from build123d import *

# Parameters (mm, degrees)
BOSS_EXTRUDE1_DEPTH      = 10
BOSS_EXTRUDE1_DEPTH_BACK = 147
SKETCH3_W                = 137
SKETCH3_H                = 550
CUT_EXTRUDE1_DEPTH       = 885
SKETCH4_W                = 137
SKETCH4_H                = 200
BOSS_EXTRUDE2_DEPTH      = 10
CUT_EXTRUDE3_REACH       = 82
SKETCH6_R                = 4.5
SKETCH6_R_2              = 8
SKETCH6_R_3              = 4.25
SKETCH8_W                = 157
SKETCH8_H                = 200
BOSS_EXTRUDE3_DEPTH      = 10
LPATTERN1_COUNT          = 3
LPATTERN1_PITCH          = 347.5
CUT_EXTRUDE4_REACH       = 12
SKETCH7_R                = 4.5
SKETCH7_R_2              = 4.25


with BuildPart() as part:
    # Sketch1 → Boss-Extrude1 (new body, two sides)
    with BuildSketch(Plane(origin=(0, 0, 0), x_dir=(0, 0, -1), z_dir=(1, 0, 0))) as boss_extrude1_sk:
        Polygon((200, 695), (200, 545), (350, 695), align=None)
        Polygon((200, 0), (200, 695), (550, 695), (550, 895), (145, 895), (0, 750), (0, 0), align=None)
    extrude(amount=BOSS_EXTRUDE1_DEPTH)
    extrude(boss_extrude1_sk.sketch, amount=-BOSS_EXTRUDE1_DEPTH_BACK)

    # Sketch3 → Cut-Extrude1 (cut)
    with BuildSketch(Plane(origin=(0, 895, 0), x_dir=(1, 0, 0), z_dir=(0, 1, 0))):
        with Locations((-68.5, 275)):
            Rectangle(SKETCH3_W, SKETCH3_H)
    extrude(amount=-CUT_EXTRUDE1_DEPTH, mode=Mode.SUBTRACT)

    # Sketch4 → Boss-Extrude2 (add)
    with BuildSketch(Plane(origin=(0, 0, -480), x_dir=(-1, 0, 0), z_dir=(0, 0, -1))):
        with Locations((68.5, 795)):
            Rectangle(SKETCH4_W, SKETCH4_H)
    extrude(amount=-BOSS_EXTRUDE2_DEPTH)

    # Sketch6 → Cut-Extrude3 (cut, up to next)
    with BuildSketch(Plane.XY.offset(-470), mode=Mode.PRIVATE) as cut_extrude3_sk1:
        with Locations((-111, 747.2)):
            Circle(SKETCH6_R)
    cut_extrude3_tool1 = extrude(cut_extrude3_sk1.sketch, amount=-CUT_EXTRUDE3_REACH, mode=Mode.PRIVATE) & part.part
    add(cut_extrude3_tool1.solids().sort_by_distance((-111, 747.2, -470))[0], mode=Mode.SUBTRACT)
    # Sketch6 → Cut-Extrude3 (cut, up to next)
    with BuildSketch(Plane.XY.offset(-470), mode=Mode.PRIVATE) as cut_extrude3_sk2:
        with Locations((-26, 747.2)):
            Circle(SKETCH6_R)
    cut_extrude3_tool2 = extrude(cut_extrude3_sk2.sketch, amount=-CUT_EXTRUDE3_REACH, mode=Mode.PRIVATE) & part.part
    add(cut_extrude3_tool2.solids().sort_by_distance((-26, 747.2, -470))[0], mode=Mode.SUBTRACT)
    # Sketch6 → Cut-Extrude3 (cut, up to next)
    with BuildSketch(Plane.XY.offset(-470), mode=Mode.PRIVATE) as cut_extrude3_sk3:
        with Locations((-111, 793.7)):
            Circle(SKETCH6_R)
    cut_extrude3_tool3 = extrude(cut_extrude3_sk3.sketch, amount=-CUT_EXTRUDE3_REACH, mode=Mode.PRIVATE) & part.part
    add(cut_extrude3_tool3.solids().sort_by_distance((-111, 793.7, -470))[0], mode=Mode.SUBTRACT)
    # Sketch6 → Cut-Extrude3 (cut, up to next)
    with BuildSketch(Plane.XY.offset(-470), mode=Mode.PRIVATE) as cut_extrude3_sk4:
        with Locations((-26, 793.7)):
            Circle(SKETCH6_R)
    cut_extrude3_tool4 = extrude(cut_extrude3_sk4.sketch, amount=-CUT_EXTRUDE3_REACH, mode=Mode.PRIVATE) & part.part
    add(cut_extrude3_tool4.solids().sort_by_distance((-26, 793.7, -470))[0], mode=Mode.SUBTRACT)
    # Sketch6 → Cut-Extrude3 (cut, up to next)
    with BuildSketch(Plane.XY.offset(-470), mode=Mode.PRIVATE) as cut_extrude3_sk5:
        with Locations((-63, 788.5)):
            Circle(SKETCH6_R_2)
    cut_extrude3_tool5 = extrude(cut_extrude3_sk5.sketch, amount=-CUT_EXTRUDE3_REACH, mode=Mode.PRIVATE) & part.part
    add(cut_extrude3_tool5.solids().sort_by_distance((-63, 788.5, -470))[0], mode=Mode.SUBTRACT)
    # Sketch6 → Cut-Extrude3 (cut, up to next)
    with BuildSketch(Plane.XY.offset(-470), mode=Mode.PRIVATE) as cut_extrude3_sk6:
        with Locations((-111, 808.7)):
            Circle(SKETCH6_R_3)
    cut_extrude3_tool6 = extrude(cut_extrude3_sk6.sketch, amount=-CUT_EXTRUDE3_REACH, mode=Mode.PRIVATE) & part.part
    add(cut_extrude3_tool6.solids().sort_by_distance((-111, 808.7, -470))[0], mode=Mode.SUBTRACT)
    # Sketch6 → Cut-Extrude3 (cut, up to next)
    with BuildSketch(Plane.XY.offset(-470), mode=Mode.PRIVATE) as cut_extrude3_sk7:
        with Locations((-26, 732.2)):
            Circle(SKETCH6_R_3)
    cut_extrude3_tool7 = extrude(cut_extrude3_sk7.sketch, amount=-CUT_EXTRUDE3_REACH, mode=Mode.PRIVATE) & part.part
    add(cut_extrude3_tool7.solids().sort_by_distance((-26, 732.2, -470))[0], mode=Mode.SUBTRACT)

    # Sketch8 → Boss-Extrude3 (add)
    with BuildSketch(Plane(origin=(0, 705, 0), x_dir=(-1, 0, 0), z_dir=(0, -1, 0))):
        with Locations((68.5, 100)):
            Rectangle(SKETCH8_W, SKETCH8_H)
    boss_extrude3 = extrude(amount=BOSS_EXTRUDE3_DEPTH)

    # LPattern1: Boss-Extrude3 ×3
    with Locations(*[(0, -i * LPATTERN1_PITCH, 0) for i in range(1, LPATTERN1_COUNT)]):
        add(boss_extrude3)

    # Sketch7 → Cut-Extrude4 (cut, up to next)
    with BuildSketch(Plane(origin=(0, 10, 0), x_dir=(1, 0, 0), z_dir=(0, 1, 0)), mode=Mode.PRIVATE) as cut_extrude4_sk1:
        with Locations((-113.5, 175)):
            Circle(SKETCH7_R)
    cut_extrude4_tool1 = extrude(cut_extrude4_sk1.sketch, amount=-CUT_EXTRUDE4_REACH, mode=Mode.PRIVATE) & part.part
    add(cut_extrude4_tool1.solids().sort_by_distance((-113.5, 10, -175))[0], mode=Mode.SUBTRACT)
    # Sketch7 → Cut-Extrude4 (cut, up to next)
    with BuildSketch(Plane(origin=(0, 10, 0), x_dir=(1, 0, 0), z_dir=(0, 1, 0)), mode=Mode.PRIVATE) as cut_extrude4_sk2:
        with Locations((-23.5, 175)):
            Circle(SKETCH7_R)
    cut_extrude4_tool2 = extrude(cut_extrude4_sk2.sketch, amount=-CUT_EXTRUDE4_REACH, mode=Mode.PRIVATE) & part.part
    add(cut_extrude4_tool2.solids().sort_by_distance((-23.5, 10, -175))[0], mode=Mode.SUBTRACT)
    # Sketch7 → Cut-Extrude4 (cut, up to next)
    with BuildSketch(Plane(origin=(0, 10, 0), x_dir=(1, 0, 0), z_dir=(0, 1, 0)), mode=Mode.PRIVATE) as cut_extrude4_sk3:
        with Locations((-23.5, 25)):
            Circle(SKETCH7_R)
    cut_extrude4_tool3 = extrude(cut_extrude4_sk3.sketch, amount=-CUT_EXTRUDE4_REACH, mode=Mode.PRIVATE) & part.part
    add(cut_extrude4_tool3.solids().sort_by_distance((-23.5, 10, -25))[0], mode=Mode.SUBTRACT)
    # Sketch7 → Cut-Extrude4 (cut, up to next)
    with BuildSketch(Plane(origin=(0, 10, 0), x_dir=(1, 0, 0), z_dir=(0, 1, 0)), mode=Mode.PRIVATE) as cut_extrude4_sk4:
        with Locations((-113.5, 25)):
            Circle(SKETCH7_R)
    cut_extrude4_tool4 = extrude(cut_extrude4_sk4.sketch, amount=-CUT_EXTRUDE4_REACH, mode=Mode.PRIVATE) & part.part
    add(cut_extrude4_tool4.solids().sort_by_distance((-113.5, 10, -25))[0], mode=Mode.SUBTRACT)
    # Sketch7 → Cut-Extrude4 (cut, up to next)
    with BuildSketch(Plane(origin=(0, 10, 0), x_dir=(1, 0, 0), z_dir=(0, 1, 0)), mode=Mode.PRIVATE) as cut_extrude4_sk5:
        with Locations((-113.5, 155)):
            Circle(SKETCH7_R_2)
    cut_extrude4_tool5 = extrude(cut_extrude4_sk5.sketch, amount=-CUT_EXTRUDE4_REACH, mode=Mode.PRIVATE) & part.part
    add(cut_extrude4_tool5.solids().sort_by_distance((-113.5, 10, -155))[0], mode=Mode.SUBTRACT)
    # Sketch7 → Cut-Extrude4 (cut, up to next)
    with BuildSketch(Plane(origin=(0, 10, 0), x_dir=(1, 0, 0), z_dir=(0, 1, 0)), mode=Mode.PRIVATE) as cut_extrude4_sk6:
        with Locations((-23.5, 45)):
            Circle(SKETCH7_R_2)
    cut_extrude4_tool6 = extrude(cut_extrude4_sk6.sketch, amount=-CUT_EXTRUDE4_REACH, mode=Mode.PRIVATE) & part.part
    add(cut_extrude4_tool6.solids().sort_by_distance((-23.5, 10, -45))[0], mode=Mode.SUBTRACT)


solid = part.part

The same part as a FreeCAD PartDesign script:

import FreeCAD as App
import Part
import Sketcher

V = App.Vector
Q = App.Units.Quantity


def add_polygon(sketch, points):
    """Adds a closed chain of lines whose ends are joined by coincident constraints."""
    first, n = sketch.GeometryCount, len(points)
    for a, b in zip(points, points[1:] + points[:1]):
        sketch.addGeometry(Part.LineSegment(App.Vector(*a, 0), App.Vector(*b, 0)), False)
    for i in range(n):
        sketch.addConstraint(Sketcher.Constraint("Coincident", first + i, 2, first + (i + 1) % n, 1))

doc = App.newDocument("Part")
params = doc.addObject("Spreadsheet::Sheet", "Params")
for row, (alias, value) in enumerate([
    ("sketch1_width", "200 mm"),
    ("sketch1_width2", "750 mm"),
    ("sketch1_width3", "545 mm"),
    ("sketch1_height", "405 mm"),
    ("pad1_length", "10 mm"),
    ("pad1_length2", "147 mm"),
    ("sketch2_width", "137 mm"),
    ("sketch2_height", "550 mm"),
    ("pocket1_length", "885 mm"),
    ("sketch3_width", "137 mm"),
    ("sketch3_height", "200 mm"),
    ("pad2_length", "10 mm"),
    ("sketch4_diameter", "9 mm"),
    ("sketch5_diameter", "9 mm"),
    ("sketch6_diameter", "9 mm"),
    ("sketch7_diameter", "9 mm"),
    ("sketch8_diameter", "16 mm"),
    ("sketch9_diameter", "8.5 mm"),
    ("sketch10_diameter", "8.5 mm"),
    ("sketch11_width", "157 mm"),
    ("sketch11_height", "200 mm"),
    ("pad3_length", "10 mm"),
    ("linearpattern_pitch", "347.5 mm"),
    ("sketch12_diameter", "9 mm"),
    ("sketch13_diameter", "9 mm"),
    ("sketch14_diameter", "9 mm"),
    ("sketch15_diameter", "9 mm"),
    ("sketch16_diameter", "8.5 mm"),
    ("sketch17_diameter", "8.5 mm"),
], start=1):
    params.set(f"A{row}", alias)
    params.set(f"B{row}", "=" + value)
    params.setAlias(f"B{row}", alias)

body = doc.addObject("PartDesign::Body", "Body")

# Sketch on YZ plane
sketch1 = body.newObject("Sketcher::SketchObject", "Sketch")
sketch1.AttachmentSupport = (doc.getObject("YZ_Plane"), [""])
sketch1.MapMode = "FlatFace"
add_polygon(sketch1, [(545, -200), (695, -350), (695, -550), (895, -550), (895, -145), (750, 0), (0, 0), (0, -200)])  # lines 0-7
sketch1.addConstraint([
    Sketcher.Constraint("Vertical", 1),
    Sketcher.Constraint("Horizontal", 2),
    Sketcher.Constraint("Vertical", 3),
    Sketcher.Constraint("Horizontal", 5),
    Sketcher.Constraint("Vertical", 6),
    Sketcher.Constraint("Horizontal", 7),
    Sketcher.Constraint("Coincident", 5, 2, -1, 1),
    Sketcher.Constraint("Parallel", 0, 4),
    Sketcher.Constraint("Equal", 2, 1),
    Sketcher.Constraint("Equal", 1, 6),
    Sketcher.Constraint("DistanceX", 2, 1, 2, 2, Q("200 mm")),
    Sketcher.Constraint("DistanceX", 5, 2, 5, 1, Q("750 mm")),
    Sketcher.Constraint("DistanceX", 7, 1, 7, 2, Q("545 mm")),
    Sketcher.Constraint("DistanceY", 3, 1, 3, 2, Q("405 mm")),
    Sketcher.Constraint("DistanceX", -1, 1, 0, 2, Q("695 mm")),
])
sketch1.setExpression("Constraints[18]", "Params.sketch1_width")
sketch1.setExpression("Constraints[19]", "Params.sketch1_width2")
sketch1.setExpression("Constraints[20]", "Params.sketch1_width3")
sketch1.setExpression("Constraints[21]", "Params.sketch1_height")
pad1 = body.newObject("PartDesign::Pad", "Pad")
pad1.Profile = sketch1
pad1.Type = "TwoLengths"
pad1.setExpression("Length", "Params.pad1_length")
pad1.setExpression("Length2", "Params.pad1_length2")

# Sketch on XZ plane
sketch2 = body.newObject("Sketcher::SketchObject", "Sketch001")
sketch2.AttachmentSupport = (doc.getObject("XZ_Plane"), [""])
sketch2.MapMode = "FlatFace"
sketch2.AttachmentOffset = App.Placement(V(0, 0, -895), App.Rotation())
add_polygon(sketch2, [(-137, -550), (-137, 0), (0, 0), (0, -550)])  # lines 0-3
sketch2.addConstraint([
    Sketcher.Constraint("Vertical", 0),
    Sketcher.Constraint("Horizontal", 1),
    Sketcher.Constraint("Vertical", 2),
    Sketcher.Constraint("Horizontal", 3),
    Sketcher.Constraint("Coincident", 1, 2, -1, 1),
    Sketcher.Constraint("DistanceX", 1, 1, 1, 2, Q("137 mm")),
    Sketcher.Constraint("DistanceY", 0, 1, 0, 2, Q("550 mm")),
])
sketch2.setExpression("Constraints[9]", "Params.sketch2_width")
sketch2.setExpression("Constraints[10]", "Params.sketch2_height")
pocket1 = body.newObject("PartDesign::Pocket", "Pocket")
pocket1.Profile = sketch2
pocket1.setExpression("Length", "Params.pocket1_length")
pocket1.Reversed = True

# Sketch on XY plane
sketch3 = body.newObject("Sketcher::SketchObject", "Sketch002")
sketch3.AttachmentSupport = (doc.getObject("XY_Plane"), [""])
sketch3.MapMode = "FlatFace"
sketch3.AttachmentOffset = App.Placement(V(0, 0, -480), App.Rotation())
add_polygon(sketch3, [(0, 895), (0, 695), (-137, 695), (-137, 895)])  # lines 0-3
sketch3.addConstraint([
    Sketcher.Constraint("Vertical", 0),
    Sketcher.Constraint("Horizontal", 1),
    Sketcher.Constraint("Vertical", 2),
    Sketcher.Constraint("Horizontal", 3),
    Sketcher.Constraint("PointOnObject", 0, 2, -2),
    Sketcher.Constraint("DistanceX", 1, 2, 1, 1, Q("137 mm")),
    Sketcher.Constraint("DistanceY", 0, 2, 0, 1, Q("200 mm")),
    Sketcher.Constraint("DistanceY", -1, 1, 0, 2, Q("695 mm")),
])
sketch3.setExpression("Constraints[9]", "Params.sketch3_width")
sketch3.setExpression("Constraints[10]", "Params.sketch3_height")
pad2 = body.newObject("PartDesign::Pad", "Pad001")
pad2.Profile = sketch3
pad2.setExpression("Length", "Params.pad2_length")

# Sketch on XY plane
sketch4 = body.newObject("Sketcher::SketchObject", "Sketch003")
sketch4.AttachmentSupport = (doc.getObject("XY_Plane"), [""])
sketch4.MapMode = "FlatFace"
sketch4.AttachmentOffset = App.Placement(V(0, 0, -470), App.Rotation())
sketch4.addGeometry(Part.Circle(V(-111, 747.2, 0), V(0, 0, 1), 4.5), False)
sketch4.addConstraint([
    Sketcher.Constraint("Diameter", 0, Q("9 mm")),
    Sketcher.Constraint("DistanceX", 0, 3, -1, 1, Q("111 mm")),
    Sketcher.Constraint("DistanceY", -1, 1, 0, 3, Q("747.2 mm")),
])
sketch4.setExpression("Constraints[0]", "Params.sketch4_diameter")
pocket2 = body.newObject("PartDesign::Pocket", "Pocket001")
pocket2.Profile = sketch4
pocket2.Type = "UpToFirst"

# Sketch on XY plane
sketch5 = body.newObject("Sketcher::SketchObject", "Sketch004")
sketch5.AttachmentSupport = (doc.getObject("XY_Plane"), [""])
sketch5.MapMode = "FlatFace"
sketch5.AttachmentOffset = App.Placement(V(0, 0, -470), App.Rotation())
sketch5.addGeometry(Part.Circle(V(-26, 747.2, 0), V(0, 0, 1), 4.5), False)
sketch5.addConstraint([
    Sketcher.Constraint("Diameter", 0, Q("9 mm")),
    Sketcher.Constraint("DistanceX", 0, 3, -1, 1, Q("26 mm")),
    Sketcher.Constraint("DistanceY", -1, 1, 0, 3, Q("747.2 mm")),
])
sketch5.setExpression("Constraints[0]", "Params.sketch5_diameter")
pocket3 = body.newObject("PartDesign::Pocket", "Pocket002")
pocket3.Profile = sketch5
pocket3.Type = "UpToFirst"

# Sketch on XY plane
sketch6 = body.newObject("Sketcher::SketchObject", "Sketch005")
sketch6.AttachmentSupport = (doc.getObject("XY_Plane"), [""])
sketch6.MapMode = "FlatFace"
sketch6.AttachmentOffset = App.Placement(V(0, 0, -470), App.Rotation())
sketch6.addGeometry(Part.Circle(V(-111, 793.7, 0), V(0, 0, 1), 4.5), False)
sketch6.addConstraint([
    Sketcher.Constraint("Diameter", 0, Q("9 mm")),
    Sketcher.Constraint("DistanceX", 0, 3, -1, 1, Q("111 mm")),
    Sketcher.Constraint("DistanceY", -1, 1, 0, 3, Q("793.7 mm")),
])
sketch6.setExpression("Constraints[0]", "Params.sketch6_diameter")
pocket4 = body.newObject("PartDesign::Pocket", "Pocket003")
pocket4.Profile = sketch6
pocket4.Type = "UpToFirst"

# Sketch on XY plane
sketch7 = body.newObject("Sketcher::SketchObject", "Sketch006")
sketch7.AttachmentSupport = (doc.getObject("XY_Plane"), [""])
sketch7.MapMode = "FlatFace"
sketch7.AttachmentOffset = App.Placement(V(0, 0, -470), App.Rotation())
sketch7.addGeometry(Part.Circle(V(-26, 793.7, 0), V(0, 0, 1), 4.5), False)
sketch7.addConstraint([
    Sketcher.Constraint("Diameter", 0, Q("9 mm")),
    Sketcher.Constraint("DistanceX", 0, 3, -1, 1, Q("26 mm")),
    Sketcher.Constraint("DistanceY", -1, 1, 0, 3, Q("793.7 mm")),
])
sketch7.setExpression("Constraints[0]", "Params.sketch7_diameter")
pocket5 = body.newObject("PartDesign::Pocket", "Pocket004")
pocket5.Profile = sketch7
pocket5.Type = "UpToFirst"

# Sketch on XY plane
sketch8 = body.newObject("Sketcher::SketchObject", "Sketch007")
sketch8.AttachmentSupport = (doc.getObject("XY_Plane"), [""])
sketch8.MapMode = "FlatFace"
sketch8.AttachmentOffset = App.Placement(V(0, 0, -470), App.Rotation())
sketch8.addGeometry(Part.Circle(V(-63, 788, 0), V(0, 0, 1), 8), False)
sketch8.addConstraint([
    Sketcher.Constraint("Diameter", 0, Q("16 mm")),
    Sketcher.Constraint("DistanceX", 0, 3, -1, 1, Q("63 mm")),
    Sketcher.Constraint("DistanceY", -1, 1, 0, 3, Q("788.5 mm")),
])
sketch8.setExpression("Constraints[0]", "Params.sketch8_diameter")
pocket6 = body.newObject("PartDesign::Pocket", "Pocket005")
pocket6.Profile = sketch8
pocket6.Type = "UpToFirst"

# Sketch on XY plane
sketch9 = body.newObject("Sketcher::SketchObject", "Sketch008")
sketch9.AttachmentSupport = (doc.getObject("XY_Plane"), [""])
sketch9.MapMode = "FlatFace"
sketch9.AttachmentOffset = App.Placement(V(0, 0, -470), App.Rotation())
sketch9.addGeometry(Part.Circle(V(-111, 808.7, 0), V(0, 0, 1), 4.2), False)
sketch9.addConstraint([
    Sketcher.Constraint("Diameter", 0, Q("8.5 mm")),
    Sketcher.Constraint("DistanceX", 0, 3, -1, 1, Q("111 mm")),
    Sketcher.Constraint("DistanceY", -1, 1, 0, 3, Q("808.7 mm")),
])
sketch9.setExpression("Constraints[0]", "Params.sketch9_diameter")
pocket7 = body.newObject("PartDesign::Pocket", "Pocket006")
pocket7.Profile = sketch9
pocket7.Type = "UpToFirst"

# Sketch on XY plane
sketch10 = body.newObject("Sketcher::SketchObject", "Sketch009")
sketch10.AttachmentSupport = (doc.getObject("XY_Plane"), [""])
sketch10.MapMode = "FlatFace"
sketch10.AttachmentOffset = App.Placement(V(0, 0, -470), App.Rotation())
sketch10.addGeometry(Part.Circle(V(-26, 732.2, 0), V(0, 0, 1), 4.2), False)
sketch10.addConstraint([
    Sketcher.Constraint("Diameter", 0, Q("8.5 mm")),
    Sketcher.Constraint("DistanceX", 0, 3, -1, 1, Q("26 mm")),
    Sketcher.Constraint("DistanceY", -1, 1, 0, 3, Q("732.2 mm")),
])
sketch10.setExpression("Constraints[0]", "Params.sketch10_diameter")
pocket8 = body.newObject("PartDesign::Pocket", "Pocket007")
pocket8.Profile = sketch10
pocket8.Type = "UpToFirst"

# Sketch on XZ plane
sketch11 = body.newObject("Sketcher::SketchObject", "Sketch010")
sketch11.AttachmentSupport = (doc.getObject("XZ_Plane"), [""])
sketch11.MapMode = "FlatFace"
sketch11.AttachmentOffset = App.Placement(V(0, 0, -705), App.Rotation())
add_polygon(sketch11, [(10, -200), (10, 0), (-147, 0), (-147, -200)])  # lines 0-3
sketch11.addConstraint([
    Sketcher.Constraint("Vertical", 0),
    Sketcher.Constraint("Horizontal", 1),
    Sketcher.Constraint("Vertical", 2),
    Sketcher.Constraint("Horizontal", 3),
    Sketcher.Constraint("PointOnObject", 0, 2, -1),
    Sketcher.Constraint("DistanceX", 1, 2, 1, 1, Q("157 mm")),
    Sketcher.Constraint("DistanceY", 0, 1, 0, 2, Q("200 mm")),
    Sketcher.Constraint("DistanceX", -1, 1, 0, 2, Q("10 mm")),
])
sketch11.setExpression("Constraints[9]", "Params.sketch11_width")
sketch11.setExpression("Constraints[10]", "Params.sketch11_height")
pad3 = body.newObject("PartDesign::Pad", "Pad002")
pad3.Profile = sketch11
pad3.setExpression("Length", "Params.pad3_length")
doc.recompute()

linearpattern = body.newObject("PartDesign::LinearPattern", "LinearPattern")
linearpattern.Originals = [pad3]
linearpattern.Direction = (doc.getObject("Y_Axis"), [""])
linearpattern.Mode = "offset"
linearpattern.setExpression("Offset", "Params.linearpattern_pitch")
linearpattern.Occurrences = 3
linearpattern.Reversed = True
body.Tip = linearpattern

# Sketch on XZ plane
sketch12 = body.newObject("Sketcher::SketchObject", "Sketch011")
sketch12.AttachmentSupport = (doc.getObject("XZ_Plane"), [""])
sketch12.MapMode = "FlatFace"
sketch12.AttachmentOffset = App.Placement(V(0, 0, -10), App.Rotation())
sketch12.addGeometry(Part.Circle(V(-113.5, -175, 0), V(0, 0, 1), 4.5), False)
sketch12.addConstraint([
    Sketcher.Constraint("Diameter", 0, Q("9 mm")),
    Sketcher.Constraint("DistanceY", 0, 3, -1, 1, Q("175 mm")),
    Sketcher.Constraint("DistanceX", 0, 3, -1, 1, Q("113.5 mm")),
])
sketch12.setExpression("Constraints[0]", "Params.sketch12_diameter")
pocket9 = body.newObject("PartDesign::Pocket", "Pocket008")
pocket9.Profile = sketch12
pocket9.Type = "UpToFirst"
pocket9.Reversed = True

# Sketch on XZ plane
sketch13 = body.newObject("Sketcher::SketchObject", "Sketch012")
sketch13.AttachmentSupport = (doc.getObject("XZ_Plane"), [""])
sketch13.MapMode = "FlatFace"
sketch13.AttachmentOffset = App.Placement(V(0, 0, -10), App.Rotation())
sketch13.addGeometry(Part.Circle(V(-23.5, -175, 0), V(0, 0, 1), 4.5), False)
sketch13.addConstraint([
    Sketcher.Constraint("Diameter", 0, Q("9 mm")),
    Sketcher.Constraint("DistanceY", 0, 3, -1, 1, Q("175 mm")),
    Sketcher.Constraint("DistanceX", 0, 3, -1, 1, Q("23.5 mm")),
])
sketch13.setExpression("Constraints[0]", "Params.sketch13_diameter")
pocket10 = body.newObject("PartDesign::Pocket", "Pocket009")
pocket10.Profile = sketch13
pocket10.Type = "UpToFirst"
pocket10.Reversed = True

# Sketch on XZ plane
sketch14 = body.newObject("Sketcher::SketchObject", "Sketch013")
sketch14.AttachmentSupport = (doc.getObject("XZ_Plane"), [""])
sketch14.MapMode = "FlatFace"
sketch14.AttachmentOffset = App.Placement(V(0, 0, -10), App.Rotation())
sketch14.addGeometry(Part.Circle(V(-23.5, -25, 0), V(0, 0, 1), 4.5), False)
sketch14.addConstraint([
    Sketcher.Constraint("Diameter", 0, Q("9 mm")),
    Sketcher.Constraint("DistanceY", 0, 3, -1, 1, Q("25 mm")),
    Sketcher.Constraint("DistanceX", 0, 3, -1, 1, Q("23.5 mm")),
])
sketch14.setExpression("Constraints[0]", "Params.sketch14_diameter")
pocket11 = body.newObject("PartDesign::Pocket", "Pocket010")
pocket11.Profile = sketch14
pocket11.Type = "UpToFirst"
pocket11.Reversed = True

# Sketch on XZ plane
sketch15 = body.newObject("Sketcher::SketchObject", "Sketch014")
sketch15.AttachmentSupport = (doc.getObject("XZ_Plane"), [""])
sketch15.MapMode = "FlatFace"
sketch15.AttachmentOffset = App.Placement(V(0, 0, -10), App.Rotation())
sketch15.addGeometry(Part.Circle(V(-113.5, -25, 0), V(0, 0, 1), 4.5), False)
sketch15.addConstraint([
    Sketcher.Constraint("Diameter", 0, Q("9 mm")),
    Sketcher.Constraint("DistanceY", 0, 3, -1, 1, Q("25 mm")),
    Sketcher.Constraint("DistanceX", 0, 3, -1, 1, Q("113.5 mm")),
])
sketch15.setExpression("Constraints[0]", "Params.sketch15_diameter")
pocket12 = body.newObject("PartDesign::Pocket", "Pocket011")
pocket12.Profile = sketch15
pocket12.Type = "UpToFirst"
pocket12.Reversed = True

# Sketch on XZ plane
sketch16 = body.newObject("Sketcher::SketchObject", "Sketch015")
sketch16.AttachmentSupport = (doc.getObject("XZ_Plane"), [""])
sketch16.MapMode = "FlatFace"
sketch16.AttachmentOffset = App.Placement(V(0, 0, -10), App.Rotation())
sketch16.addGeometry(Part.Circle(V(-113.5, -155, 0), V(0, 0, 1), 4.2), False)
sketch16.addConstraint([
    Sketcher.Constraint("Diameter", 0, Q("8.5 mm")),
    Sketcher.Constraint("DistanceY", 0, 3, -1, 1, Q("155 mm")),
    Sketcher.Constraint("DistanceX", 0, 3, -1, 1, Q("113.5 mm")),
])
sketch16.setExpression("Constraints[0]", "Params.sketch16_diameter")
pocket13 = body.newObject("PartDesign::Pocket", "Pocket012")
pocket13.Profile = sketch16
pocket13.Type = "UpToFirst"
pocket13.Reversed = True

# Sketch on XZ plane
sketch17 = body.newObject("Sketcher::SketchObject", "Sketch016")
sketch17.AttachmentSupport = (doc.getObject("XZ_Plane"), [""])
sketch17.MapMode = "FlatFace"
sketch17.AttachmentOffset = App.Placement(V(0, 0, -10), App.Rotation())
sketch17.addGeometry(Part.Circle(V(-23.5, -45, 0), V(0, 0, 1), 4.2), False)
sketch17.addConstraint([
    Sketcher.Constraint("Diameter", 0, Q("8.5 mm")),
    Sketcher.Constraint("DistanceY", 0, 3, -1, 1, Q("45 mm")),
    Sketcher.Constraint("DistanceX", 0, 3, -1, 1, Q("23.5 mm")),
])
sketch17.setExpression("Constraints[0]", "Params.sketch17_diameter")
pocket14 = body.newObject("PartDesign::Pocket", "Pocket013")
pocket14.Profile = sketch17
pocket14.Type = "UpToFirst"
pocket14.Reversed = True

doc.recompute()
